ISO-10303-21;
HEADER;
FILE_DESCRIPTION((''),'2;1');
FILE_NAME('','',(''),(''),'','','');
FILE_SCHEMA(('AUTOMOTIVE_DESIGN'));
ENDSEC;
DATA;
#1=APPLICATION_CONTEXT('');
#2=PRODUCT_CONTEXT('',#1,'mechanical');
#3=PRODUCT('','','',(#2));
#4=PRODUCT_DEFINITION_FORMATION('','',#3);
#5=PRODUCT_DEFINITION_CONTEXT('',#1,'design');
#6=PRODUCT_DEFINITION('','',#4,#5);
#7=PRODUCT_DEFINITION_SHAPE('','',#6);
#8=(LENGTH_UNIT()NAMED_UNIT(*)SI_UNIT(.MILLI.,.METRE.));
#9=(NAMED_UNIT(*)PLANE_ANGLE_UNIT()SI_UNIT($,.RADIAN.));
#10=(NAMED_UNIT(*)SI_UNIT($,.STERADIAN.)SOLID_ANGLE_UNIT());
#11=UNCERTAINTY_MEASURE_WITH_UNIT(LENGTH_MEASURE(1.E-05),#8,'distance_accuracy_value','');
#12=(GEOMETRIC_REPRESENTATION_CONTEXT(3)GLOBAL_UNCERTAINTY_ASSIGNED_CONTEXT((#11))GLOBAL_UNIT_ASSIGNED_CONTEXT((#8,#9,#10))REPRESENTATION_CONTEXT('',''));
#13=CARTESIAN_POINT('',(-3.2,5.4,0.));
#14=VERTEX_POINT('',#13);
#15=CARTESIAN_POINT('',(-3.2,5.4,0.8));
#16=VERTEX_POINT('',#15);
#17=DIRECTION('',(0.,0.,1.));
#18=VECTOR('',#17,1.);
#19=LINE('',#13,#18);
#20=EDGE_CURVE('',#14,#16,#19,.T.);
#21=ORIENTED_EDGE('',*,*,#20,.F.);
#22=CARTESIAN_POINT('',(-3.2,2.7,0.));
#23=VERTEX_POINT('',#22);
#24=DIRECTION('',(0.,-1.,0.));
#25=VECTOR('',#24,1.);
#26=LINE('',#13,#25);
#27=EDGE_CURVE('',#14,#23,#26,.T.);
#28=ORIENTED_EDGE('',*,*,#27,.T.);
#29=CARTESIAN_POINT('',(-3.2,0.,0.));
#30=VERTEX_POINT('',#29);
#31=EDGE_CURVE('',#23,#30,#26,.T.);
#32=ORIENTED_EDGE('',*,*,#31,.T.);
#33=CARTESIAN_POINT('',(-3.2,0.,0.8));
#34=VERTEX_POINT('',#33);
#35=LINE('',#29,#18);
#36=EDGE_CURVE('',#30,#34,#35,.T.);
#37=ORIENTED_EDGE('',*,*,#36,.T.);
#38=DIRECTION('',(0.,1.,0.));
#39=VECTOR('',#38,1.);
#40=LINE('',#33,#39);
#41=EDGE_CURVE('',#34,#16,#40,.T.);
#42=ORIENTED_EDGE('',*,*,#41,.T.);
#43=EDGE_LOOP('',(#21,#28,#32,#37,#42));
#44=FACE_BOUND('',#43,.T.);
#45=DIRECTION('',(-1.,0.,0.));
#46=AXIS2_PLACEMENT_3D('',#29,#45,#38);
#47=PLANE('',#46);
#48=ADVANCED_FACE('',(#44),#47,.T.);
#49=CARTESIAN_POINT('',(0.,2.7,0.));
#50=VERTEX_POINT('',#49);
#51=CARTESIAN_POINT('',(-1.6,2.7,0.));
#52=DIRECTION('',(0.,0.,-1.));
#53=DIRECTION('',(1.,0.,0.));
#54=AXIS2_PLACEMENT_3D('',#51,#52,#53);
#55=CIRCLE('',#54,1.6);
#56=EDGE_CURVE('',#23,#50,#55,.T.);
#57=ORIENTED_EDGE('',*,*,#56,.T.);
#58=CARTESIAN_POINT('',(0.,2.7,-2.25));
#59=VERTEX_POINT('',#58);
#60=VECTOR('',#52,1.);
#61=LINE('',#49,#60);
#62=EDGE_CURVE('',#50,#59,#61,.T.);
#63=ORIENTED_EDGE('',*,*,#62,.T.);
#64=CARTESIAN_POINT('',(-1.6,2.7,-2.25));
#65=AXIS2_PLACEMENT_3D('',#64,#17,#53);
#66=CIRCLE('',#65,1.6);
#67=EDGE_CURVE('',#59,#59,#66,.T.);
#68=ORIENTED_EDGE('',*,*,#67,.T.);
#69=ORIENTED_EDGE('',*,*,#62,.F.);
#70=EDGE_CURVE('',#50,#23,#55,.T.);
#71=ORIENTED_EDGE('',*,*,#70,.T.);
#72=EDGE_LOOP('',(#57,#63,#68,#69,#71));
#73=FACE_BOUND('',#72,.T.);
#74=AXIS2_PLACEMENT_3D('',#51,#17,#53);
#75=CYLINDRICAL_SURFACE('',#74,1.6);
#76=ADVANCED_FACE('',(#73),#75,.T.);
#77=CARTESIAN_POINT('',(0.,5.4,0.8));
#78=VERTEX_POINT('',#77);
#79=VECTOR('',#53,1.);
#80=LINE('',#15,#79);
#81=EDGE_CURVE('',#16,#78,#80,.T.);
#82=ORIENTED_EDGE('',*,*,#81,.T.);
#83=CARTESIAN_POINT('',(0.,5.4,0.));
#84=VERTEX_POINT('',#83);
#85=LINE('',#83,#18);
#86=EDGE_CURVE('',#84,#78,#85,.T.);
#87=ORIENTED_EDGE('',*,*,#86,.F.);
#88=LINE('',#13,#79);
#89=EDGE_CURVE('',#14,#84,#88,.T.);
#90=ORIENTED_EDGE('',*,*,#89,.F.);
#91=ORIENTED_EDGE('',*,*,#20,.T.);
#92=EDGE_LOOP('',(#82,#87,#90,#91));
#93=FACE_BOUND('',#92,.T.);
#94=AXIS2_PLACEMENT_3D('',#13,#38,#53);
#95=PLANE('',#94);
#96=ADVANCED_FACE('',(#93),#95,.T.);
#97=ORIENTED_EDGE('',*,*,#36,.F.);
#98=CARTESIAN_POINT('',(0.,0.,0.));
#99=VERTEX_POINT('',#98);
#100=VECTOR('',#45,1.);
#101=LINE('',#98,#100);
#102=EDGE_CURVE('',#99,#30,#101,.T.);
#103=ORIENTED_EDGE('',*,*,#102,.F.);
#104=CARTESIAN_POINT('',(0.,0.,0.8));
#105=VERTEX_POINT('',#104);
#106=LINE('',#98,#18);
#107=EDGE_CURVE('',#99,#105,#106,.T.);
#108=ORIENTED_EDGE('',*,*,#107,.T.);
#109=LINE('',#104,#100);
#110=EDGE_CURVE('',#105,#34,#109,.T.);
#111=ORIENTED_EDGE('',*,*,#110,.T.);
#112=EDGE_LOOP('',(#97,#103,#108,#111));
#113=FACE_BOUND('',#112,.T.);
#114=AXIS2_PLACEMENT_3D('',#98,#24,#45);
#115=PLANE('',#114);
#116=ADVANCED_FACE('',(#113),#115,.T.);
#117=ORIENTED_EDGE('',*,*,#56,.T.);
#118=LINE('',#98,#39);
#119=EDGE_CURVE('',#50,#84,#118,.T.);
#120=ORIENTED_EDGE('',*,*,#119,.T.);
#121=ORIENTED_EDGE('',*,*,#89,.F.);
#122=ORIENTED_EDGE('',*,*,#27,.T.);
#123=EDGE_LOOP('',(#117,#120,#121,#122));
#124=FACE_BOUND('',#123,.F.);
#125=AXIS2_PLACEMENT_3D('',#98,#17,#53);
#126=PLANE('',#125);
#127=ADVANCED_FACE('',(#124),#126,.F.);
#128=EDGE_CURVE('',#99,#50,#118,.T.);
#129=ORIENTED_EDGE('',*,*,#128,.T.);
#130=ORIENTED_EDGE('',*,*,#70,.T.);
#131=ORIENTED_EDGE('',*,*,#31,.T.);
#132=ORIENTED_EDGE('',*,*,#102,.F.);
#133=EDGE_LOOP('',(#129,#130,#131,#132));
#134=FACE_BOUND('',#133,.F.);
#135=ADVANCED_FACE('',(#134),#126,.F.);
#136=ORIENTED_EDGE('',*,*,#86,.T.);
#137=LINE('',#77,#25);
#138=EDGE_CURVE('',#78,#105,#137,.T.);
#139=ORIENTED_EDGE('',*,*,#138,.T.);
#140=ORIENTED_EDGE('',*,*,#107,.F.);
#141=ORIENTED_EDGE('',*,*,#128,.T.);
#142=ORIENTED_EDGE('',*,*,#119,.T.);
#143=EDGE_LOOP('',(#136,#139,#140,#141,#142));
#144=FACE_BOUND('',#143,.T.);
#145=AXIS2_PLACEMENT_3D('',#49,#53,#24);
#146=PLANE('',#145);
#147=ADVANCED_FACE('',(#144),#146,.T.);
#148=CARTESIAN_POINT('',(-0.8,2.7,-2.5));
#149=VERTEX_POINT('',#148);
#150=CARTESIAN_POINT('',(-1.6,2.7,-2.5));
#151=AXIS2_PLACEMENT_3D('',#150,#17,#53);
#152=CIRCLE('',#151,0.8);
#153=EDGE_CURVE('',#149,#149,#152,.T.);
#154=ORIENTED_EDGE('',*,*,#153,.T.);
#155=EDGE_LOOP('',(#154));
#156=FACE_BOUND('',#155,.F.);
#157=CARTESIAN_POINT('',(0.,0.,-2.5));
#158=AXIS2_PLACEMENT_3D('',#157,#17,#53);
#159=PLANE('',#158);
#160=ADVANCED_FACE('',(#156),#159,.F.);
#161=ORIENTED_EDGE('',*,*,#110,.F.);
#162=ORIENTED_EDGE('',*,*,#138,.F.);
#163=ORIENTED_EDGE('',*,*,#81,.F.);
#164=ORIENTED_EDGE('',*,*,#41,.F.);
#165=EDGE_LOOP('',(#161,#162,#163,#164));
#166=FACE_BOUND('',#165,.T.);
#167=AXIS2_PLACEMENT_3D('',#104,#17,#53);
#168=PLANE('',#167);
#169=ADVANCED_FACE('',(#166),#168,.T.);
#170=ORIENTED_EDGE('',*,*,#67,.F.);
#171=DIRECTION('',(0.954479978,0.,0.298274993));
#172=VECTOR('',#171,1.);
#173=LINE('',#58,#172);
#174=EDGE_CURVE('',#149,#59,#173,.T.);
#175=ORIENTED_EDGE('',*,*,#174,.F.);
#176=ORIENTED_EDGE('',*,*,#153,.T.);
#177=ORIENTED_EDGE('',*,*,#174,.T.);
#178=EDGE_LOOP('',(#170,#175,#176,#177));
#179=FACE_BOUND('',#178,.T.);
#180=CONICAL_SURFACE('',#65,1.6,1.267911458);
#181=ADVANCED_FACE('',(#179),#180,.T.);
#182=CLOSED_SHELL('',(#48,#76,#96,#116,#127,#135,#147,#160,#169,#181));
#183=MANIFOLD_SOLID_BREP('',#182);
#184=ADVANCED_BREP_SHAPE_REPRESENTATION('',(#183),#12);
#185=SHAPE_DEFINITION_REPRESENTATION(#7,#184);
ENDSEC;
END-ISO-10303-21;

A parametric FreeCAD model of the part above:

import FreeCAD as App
import Part
import Sketcher

V = App.Vector
Q = App.Units.Quantity


def edges_at(feature, points):
    """Names of the edges that pass closest to the given points."""
    edges = feature.Shape.Edges
    near = lambda p: min(range(len(edges)), key=lambda i: edges[i].distToShape(Part.Vertex(*p))[0])
    return sorted({f"Edge{near(p) + 1}" for p in points})

doc = App.newDocument("Part")
body = doc.addObject("PartDesign::Body", "Body")

# Sketch on XY plane
sketch1 = body.newObject("Sketcher::SketchObject", "Sketch")
sketch1.AttachmentSupport = (doc.getObject("XY_Plane"), [""])
sketch1.MapMode = "FlatFace"
sketch1.addGeometry([
    Part.LineSegment(V(-3.2, 0, 0), V(0, 0, 0)),
    Part.LineSegment(V(0, 0, 0), V(0, 5.4, 0)),
    Part.LineSegment(V(0, 5.4, 0), V(-3.2, 5.4, 0)),
    Part.LineSegment(V(-3.2, 5.4, 0), V(-3.2, 0, 0)),
], False)
sketch1.addConstraint([
    Sketcher.Constraint("Coincident", 0, 2, 1, 1),
    Sketcher.Constraint("Coincident", 1, 2, 2, 1),
    Sketcher.Constraint("Coincident", 2, 2, 3, 1),
    Sketcher.Constraint("Coincident", 3, 2, 0, 1),
    Sketcher.Constraint("Horizontal", 0),
    Sketcher.Constraint("Vertical", 1),
    Sketcher.Constraint("Horizontal", 2),
    Sketcher.Constraint("Vertical", 3),
    Sketcher.Constraint("Coincident", 0, 2, -1, 1),
    Sketcher.Constraint("DistanceX", 0, 1, 0, 2, Q("3.2 mm")),
    Sketcher.Constraint("DistanceY", 1, 1, 1, 2, Q("5.4 mm")),
])
pad1 = body.newObject("PartDesign::Pad", "Pad")
pad1.Profile = sketch1
pad1.Length = 0.8

# Sketch on XY plane
sketch2 = body.newObject("Sketcher::SketchObject", "Sketch001")
sketch2.AttachmentSupport = (doc.getObject("XY_Plane"), [""])
sketch2.MapMode = "FlatFace"
sketch2.addGeometry(Part.Circle(V(-1.6, 2.7, 0), V(0, 0, 1), 1.6), False)
sketch2.addConstraint([
    Sketcher.Constraint("Diameter", 0, Q("3.2 mm")),
    Sketcher.Constraint("DistanceX", 0, 3, -1, 1, Q("1.6 mm")),
    Sketcher.Constraint("DistanceY", -1, 1, 0, 3, Q("2.7 mm")),
])
pad2 = body.newObject("PartDesign::Pad", "Pad001")
pad2.Profile = sketch2
pad2.Length = 2.5
pad2.Reversed = True
doc.recompute()

chamfer = body.newObject("PartDesign::Chamfer", "Chamfer")
chamfer.Base = (pad2, edges_at(pad2, [(-3.2, 2.7, -2.5)]))
chamfer.ChamferType = "Two distances"
chamfer.Size = 0.8
chamfer.Size2 = 0.25
chamfer.FlipDirection = True

doc.recompute()
